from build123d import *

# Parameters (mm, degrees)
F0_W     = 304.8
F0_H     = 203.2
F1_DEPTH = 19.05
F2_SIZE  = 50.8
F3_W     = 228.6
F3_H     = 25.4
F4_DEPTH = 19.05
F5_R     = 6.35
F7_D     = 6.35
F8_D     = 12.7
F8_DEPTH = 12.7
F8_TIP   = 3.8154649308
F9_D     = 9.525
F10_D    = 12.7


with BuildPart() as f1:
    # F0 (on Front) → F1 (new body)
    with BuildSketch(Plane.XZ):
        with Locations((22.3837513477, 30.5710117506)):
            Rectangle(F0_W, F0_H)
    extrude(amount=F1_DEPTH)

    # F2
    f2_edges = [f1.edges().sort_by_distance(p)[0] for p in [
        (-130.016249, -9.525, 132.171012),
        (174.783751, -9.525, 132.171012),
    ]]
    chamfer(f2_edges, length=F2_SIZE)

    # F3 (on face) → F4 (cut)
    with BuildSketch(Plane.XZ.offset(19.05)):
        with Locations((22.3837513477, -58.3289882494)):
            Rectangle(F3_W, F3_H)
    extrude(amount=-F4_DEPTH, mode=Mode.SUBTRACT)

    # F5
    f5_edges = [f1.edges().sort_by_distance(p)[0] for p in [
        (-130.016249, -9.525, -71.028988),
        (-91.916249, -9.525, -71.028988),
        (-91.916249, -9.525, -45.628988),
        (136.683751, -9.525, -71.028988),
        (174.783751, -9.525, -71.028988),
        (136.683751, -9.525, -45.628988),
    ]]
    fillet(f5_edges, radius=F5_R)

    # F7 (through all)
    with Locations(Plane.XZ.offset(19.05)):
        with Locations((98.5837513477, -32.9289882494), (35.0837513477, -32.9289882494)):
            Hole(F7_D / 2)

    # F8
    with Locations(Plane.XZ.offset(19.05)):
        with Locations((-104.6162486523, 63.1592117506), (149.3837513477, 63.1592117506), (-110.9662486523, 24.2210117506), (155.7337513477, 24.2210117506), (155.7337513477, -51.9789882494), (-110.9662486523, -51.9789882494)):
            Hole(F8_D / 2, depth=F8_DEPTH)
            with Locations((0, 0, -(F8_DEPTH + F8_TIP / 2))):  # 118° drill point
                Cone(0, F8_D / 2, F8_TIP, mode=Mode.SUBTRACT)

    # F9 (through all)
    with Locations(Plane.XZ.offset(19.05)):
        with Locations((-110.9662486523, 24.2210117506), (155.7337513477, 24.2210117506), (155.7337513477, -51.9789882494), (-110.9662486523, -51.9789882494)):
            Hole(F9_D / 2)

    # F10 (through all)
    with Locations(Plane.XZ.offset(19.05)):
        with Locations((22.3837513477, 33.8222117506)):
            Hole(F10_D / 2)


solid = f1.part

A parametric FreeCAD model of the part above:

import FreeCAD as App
import Part
import Sketcher
from FreeCAD import Vector
Q = App.Units.Quantity


def edges_at(feature, points):
    """Names of the edges that pass closest to the given points."""
    edges = feature.Shape.Edges
    near = lambda p: min(range(len(edges)), key=lambda i: edges[i].distToShape(Part.Vertex(*p))[0])
    return sorted({f"Edge{near(p) + 1}" for p in points})

doc = App.newDocument("Part")
params = doc.addObject("Spreadsheet::Sheet", "Params")
for row, (alias, value) in enumerate([
    ("sketch1_width", "12 in"),
    ("sketch1_height", "8 in"),
    ("pad1_length", "0.75 in"),
    ("chamfer_size", "2 in"),
    ("sketch2_width", "9 in"),
    ("sketch2_height", "1 in"),
    ("pocket1_length", "0.75 in"),
    ("fillet_radius", "0.25 in"),
    ("sketch3_diameter", "0.25 in"),
    ("hole_diameter", "0.25 in"),
    ("sketch4_diameter", "0.5 in"),
    ("hole2_diameter", "0.5 in"),
    ("hole2_depth", "0.5 in"),
    ("sketch5_diameter", "0.375 in"),
    ("hole3_diameter", "0.375 in"),
    ("sketch6_diameter", "0.5 in"),
    ("hole4_diameter", "0.5 in"),
], start=1):
    params.set(f"A{row}", alias)
    params.set(f"B{row}", "=" + value)
    params.setAlias(f"B{row}", alias)

body = doc.addObject("PartDesign::Body", "Body")

# Sketch on XZ plane
sketch1 = body.newObject("Sketcher::SketchObject", "Sketch")
sketch1.AttachmentSupport = (doc.getObject("XZ_Plane"), [""])
sketch1.MapMode = "FlatFace"
sketch1.addGeometry(Part.LineSegment(Vector(-130, 132, 0), Vector(-130, -71, 0)), False)
sketch1.addGeometry(Part.LineSegment(Vector(-130, -71, 0), Vector(175, -71, 0)), False)
sketch1.addGeometry(Part.LineSegment(Vector(175, -71, 0), Vector(175, 132, 0)), False)
sketch1.addGeometry(Part.LineSegment(Vector(175, 132, 0), Vector(-130, 132, 0)), False)
sketch1.addConstraint(Sketcher.Constraint("Coincident", 0, 2, 1, 1))
sketch1.addConstraint(Sketcher.Constraint("Coincident", 1, 2, 2, 1))
sketch1.addConstraint(Sketcher.Constraint("Coincident", 2, 2, 3, 1))
sketch1.addConstraint(Sketcher.Constraint("Coincident", 3, 2, 0, 1))
sketch1.addConstraint(Sketcher.Constraint("Vertical", 0))
sketch1.addConstraint(Sketcher.Constraint("Horizontal", 1))
sketch1.addConstraint(Sketcher.Constraint("Vertical", 2))
sketch1.addConstraint(Sketcher.Constraint("Horizontal", 3))
sketch1.addConstraint(Sketcher.Constraint("DistanceX", 1, 1, 1, 2, Q("12 in")))
sketch1.addConstraint(Sketcher.Constraint("DistanceY", 0, 2, 0, 1, Q("8 in")))
sketch1.addConstraint(Sketcher.Constraint("DistanceX", 0, 2, -1, 1, Q("130.016249 mm")))
sketch1.addConstraint(Sketcher.Constraint("DistanceY", 0, 2, -1, 1, Q("71.028988 mm")))
sketch1.setExpression("Constraints[8]", "Params.sketch1_width")
sketch1.setExpression("Constraints[9]", "Params.sketch1_height")
pad1 = body.newObject("PartDesign::Pad", "Pad")
pad1.Profile = sketch1
pad1.setExpression("Length", "Params.pad1_length")
doc.recompute()

chamfer = body.newObject("PartDesign::Chamfer", "Chamfer")
chamfer.Base = (pad1, edges_at(pad1, [(-130.016, -9.525, 132.171), (174.784, -9.525, 132.171)]))
chamfer.setExpression("Size", "Params.chamfer_size")

# Sketch on XZ plane
sketch2 = body.newObject("Sketcher::SketchObject", "Sketch001")
sketch2.AttachmentSupport = (doc.getObject("XZ_Plane"), [""])
sketch2.MapMode = "FlatFace"
sketch2.AttachmentOffset = App.Placement(Vector(0, 0, 0.75 * 25.4), App.Rotation())
sketch2.addGeometry(Part.LineSegment(Vector(-92, -46, 0), Vector(-92, -71, 0)), False)
sketch2.addGeometry(Part.LineSegment(Vector(-92, -71, 0), Vector(137, -71, 0)), False)
sketch2.addGeometry(Part.LineSegment(Vector(137, -71, 0), Vector(137, -46, 0)), False)
sketch2.addGeometry(Part.LineSegment(Vector(137, -46, 0), Vector(-92, -46, 0)), False)
sketch2.addConstraint(Sketcher.Constraint("Coincident", 0, 2, 1, 1))
sketch2.addConstraint(Sketcher.Constraint("Coincident", 1, 2, 2, 1))
sketch2.addConstraint(Sketcher.Constraint("Coincident", 2, 2, 3, 1))
sketch2.addConstraint(Sketcher.Constraint("Coincident", 3, 2, 0, 1))
sketch2.addConstraint(Sketcher.Constraint("Vertical", 0))
sketch2.addConstraint(Sketcher.Constraint("Horizontal", 1))
sketch2.addConstraint(Sketcher.Constraint("Vertical", 2))
sketch2.addConstraint(Sketcher.Constraint("Horizontal", 3))
sketch2.addConstraint(Sketcher.Constraint("DistanceX", 1, 1, 1, 2, Q("9 in")))
sketch2.addConstraint(Sketcher.Constraint("DistanceY", 0, 2, 0, 1, Q("1 in")))
sketch2.addConstraint(Sketcher.Constraint("DistanceX", 0, 2, -1, 1, Q("91.916249 mm")))
sketch2.addConstraint(Sketcher.Constraint("DistanceY", 0, 2, -1, 1, Q("71.028988 mm")))
sketch2.setExpression("Constraints[8]", "Params.sketch2_width")
sketch2.setExpression("Constraints[9]", "Params.sketch2_height")
pocket1 = body.newObject("PartDesign::Pocket", "Pocket")
pocket1.Profile = sketch2
pocket1.setExpression("Length", "Params.pocket1_length")
doc.recompute()

fillet = body.newObject("PartDesign::Fillet", "Fillet")
fillet.Base = (pocket1, edges_at(pocket1, [
    (-130.016, -9.525, -71.029),
    (-91.916, -9.525, -71.029),
    (-91.916, -9.525, -45.629),
    (136.684, -9.525, -71.029),
    (174.784, -9.525, -71.029),
    (136.684, -9.525, -45.629),
]))
fillet.setExpression("Radius", "Params.fillet_radius")

# Sketch on XZ plane
sketch3 = body.newObject("Sketcher::SketchObject", "Sketch002")
sketch3.AttachmentSupport = (doc.getObject("XZ_Plane"), [""])
sketch3.MapMode = "FlatFace"
sketch3.AttachmentOffset = App.Placement(Vector(0, 0, 0.75 * 25.4), App.Rotation())
sketch3.addGeometry(Part.Circle(Vector(98.6, -32.9, 0), Vector(0, 0, 1), 3.2), False)
sketch3.addGeometry(Part.Circle(Vector(35.1, -32.9, 0), Vector(0, 0, 1), 3.2), False)
sketch3.addConstraint(Sketcher.Constraint("Equal", 0, 1))
sketch3.addConstraint(Sketcher.Constraint("Horizontal", 0, 3, 1, 3))
sketch3.addConstraint(Sketcher.Constraint("Diameter", 0, Q("0.25 in")))
sketch3.addConstraint(Sketcher.Constraint("DistanceX", 1, 3, 0, 3, Q("2.5 in")))
sketch3.addConstraint(Sketcher.Constraint("DistanceX", -1, 1, 0, 3, Q("98.583751 mm")))
sketch3.addConstraint(Sketcher.Constraint("DistanceY", 0, 3, -1, 1, Q("32.928988 mm")))
sketch3.setExpression("Constraints[2]", "Params.sketch3_diameter")
doc.recompute()
hole = body.newObject("PartDesign::Hole", "Hole")
hole.Profile = sketch3
hole.ThreadType = "None"
hole.setExpression("Diameter", "Params.hole_diameter")
hole.DepthType = "ThroughAll"

# Sketch on XZ plane
sketch4 = body.newObject("Sketcher::SketchObject", "Sketch003")
sketch4.AttachmentSupport = (doc.getObject("XZ_Plane"), [""])
sketch4.MapMode = "FlatFace"
sketch4.AttachmentOffset = App.Placement(Vector(0, 0, 0.75 * 25.4), App.Rotation())
sketch4.addGeometry(Part.Circle(Vector(-105, 63, 0), Vector(0, 0, 1), 6), False)
sketch4.addGeometry(Part.Circle(Vector(149, 63, 0), Vector(0, 0, 1), 6), False)
sketch4.addGeometry(Part.Circle(Vector(-111, 24, 0), Vector(0, 0, 1), 6), False)
sketch4.addGeometry(Part.Circle(Vector(156, 24, 0), Vector(0, 0, 1), 6), False)
sketch4.addGeometry(Part.Circle(Vector(156, -52, 0), Vector(0, 0, 1), 6), False)
sketch4.addGeometry(Part.Circle(Vector(-111, -52, 0), Vector(0, 0, 1), 6), False)
sketch4.addConstraint(Sketcher.Constraint("Equal", 0, 1))
sketch4.addConstraint(Sketcher.Constraint("Equal", 1, 2))
sketch4.addConstraint(Sketcher.Constraint("Equal", 2, 3))
sketch4.addConstraint(Sketcher.Constraint("Equal", 3, 4))
sketch4.addConstraint(Sketcher.Constraint("Equal", 4, 5))
sketch4.addConstraint(Sketcher.Constraint("Horizontal", 0, 3, 1, 3))
sketch4.addConstraint(Sketcher.Constraint("Horizontal", 2, 3, 3, 3))
sketch4.addConstraint(Sketcher.Constraint("Horizontal", 4, 3, 5, 3))
sketch4.addConstraint(Sketcher.Constraint("Vertical", 3, 3, 4, 3))
sketch4.addConstraint(Sketcher.Constraint("Vertical", 2, 3, 5, 3))
sketch4.addConstraint(Sketcher.Constraint("Diameter", 0, Q("0.5 in")))
sketch4.addConstraint(Sketcher.Constraint("DistanceX", 0, 3, 1, 3, Q("10 in")))
sketch4.addConstraint(Sketcher.Constraint("DistanceY", 4, 3, 3, 3, Q("3 in")))
sketch4.addConstraint(Sketcher.Constraint("DistanceX", 2, 3, 3, 3, Q("10.5 in")))
sketch4.addConstraint(Sketcher.Constraint("DistanceX", 2, 3, 0, 3, Q("0.25 in")))
sketch4.addConstraint(Sketcher.Constraint("DistanceY", 2, 3, 0, 3, Q("1.533 in")))
sketch4.addConstraint(Sketcher.Constraint("DistanceX", 0, 3, -1, 1, Q("104.616249 mm")))
sketch4.addConstraint(Sketcher.Constraint("DistanceY", -1, 1, 0, 3, Q("63.159212 mm")))
sketch4.setExpression("Constraints[10]", "Params.sketch4_diameter")
doc.recompute()
hole2 = body.newObject("PartDesign::Hole", "Hole001")
hole2.Profile = sketch4
hole2.ThreadType = "None"
hole2.setExpression("Diameter", "Params.hole2_diameter")
hole2.DepthType = "Dimension"
hole2.setExpression("Depth", "Params.hole2_depth")
hole2.DrillPoint = "Angled"
hole2.DrillPointAngle = 118

# Sketch on XZ plane
sketch5 = body.newObject("Sketcher::SketchObject", "Sketch004")
sketch5.AttachmentSupport = (doc.getObject("XZ_Plane"), [""])
sketch5.MapMode = "FlatFace"
sketch5.AttachmentOffset = App.Placement(Vector(0, 0, 0.75 * 25.4), App.Rotation())
sketch5.addGeometry(Part.Circle(Vector(-111, 24.2, 0), Vector(0, 0, 1), 4.8), False)
sketch5.addGeometry(Part.Circle(Vector(155.7, 24.2, 0), Vector(0, 0, 1), 4.8), False)
sketch5.addGeometry(Part.Circle(Vector(155.7, -52, 0), Vector(0, 0, 1), 4.8), False)
sketch5.addGeometry(Part.Circle(Vector(-111, -52, 0), Vector(0, 0, 1), 4.8), False)
sketch5.addConstraint(Sketcher.Constraint("Equal", 0, 1))
sketch5.addConstraint(Sketcher.Constraint("Equal", 1, 2))
sketch5.addConstraint(Sketcher.Constraint("Equal", 2, 3))
sketch5.addConstraint(Sketcher.Constraint("Horizontal", 0, 3, 1, 3))
sketch5.addConstraint(Sketcher.Constraint("Horizontal", 2, 3, 3, 3))
sketch5.addConstraint(Sketcher.Constraint("Vertical", 1, 3, 2, 3))
sketch5.addConstraint(Sketcher.Constraint("Vertical", 0, 3, 3, 3))
sketch5.addConstraint(Sketcher.Constraint("Diameter", 0, Q("0.375 in")))
sketch5.addConstraint(Sketcher.Constraint("DistanceY", 2, 3, 1, 3, Q("3 in")))
sketch5.addConstraint(Sketcher.Constraint("DistanceX", 0, 3, 1, 3, Q("10.5 in")))
sketch5.addConstraint(Sketcher.Constraint("DistanceX", 0, 3, -1, 1, Q("110.966249 mm")))
sketch5.addConstraint(Sketcher.Constraint("DistanceY", -1, 1, 0, 3, Q("24.221012 mm")))
sketch5.setExpression("Constraints[7]", "Params.sketch5_diameter")
doc.recompute()
hole3 = body.newObject("PartDesign::Hole", "Hole002")
hole3.Profile = sketch5
hole3.ThreadType = "None"
hole3.setExpression("Diameter", "Params.hole3_diameter")
hole3.DepthType = "ThroughAll"

# Sketch on XZ plane
sketch6 = body.newObject("Sketcher::SketchObject", "Sketch005")
sketch6.AttachmentSupport = (doc.getObject("XZ_Plane"), [""])
sketch6.MapMode = "FlatFace"
sketch6.AttachmentOffset = App.Placement(Vector(0, 0, 0.75 * 25.4), App.Rotation())
sketch6.addGeometry(Part.Circle(Vector(22, 34, 0), Vector(0, 0, 1), 6), False)
sketch6.addConstraint(Sketcher.Constraint("Diameter", 0, Q("0.5 in")))
sketch6.addConstraint(Sketcher.Constraint("DistanceX", -1, 1, 0, 3, Q("22.383751 mm")))
sketch6.addConstraint(Sketcher.Constraint("DistanceY", -1, 1, 0, 3, Q("33.822212 mm")))
sketch6.setExpression("Constraints[0]", "Params.sketch6_diameter")
doc.recompute()
hole4 = body.newObject("PartDesign::Hole", "Hole003")
hole4.Profile = sketch6
hole4.ThreadType = "None"
hole4.setExpression("Diameter", "Params.hole4_diameter")
hole4.DepthType = "ThroughAll"

doc.recompute()
